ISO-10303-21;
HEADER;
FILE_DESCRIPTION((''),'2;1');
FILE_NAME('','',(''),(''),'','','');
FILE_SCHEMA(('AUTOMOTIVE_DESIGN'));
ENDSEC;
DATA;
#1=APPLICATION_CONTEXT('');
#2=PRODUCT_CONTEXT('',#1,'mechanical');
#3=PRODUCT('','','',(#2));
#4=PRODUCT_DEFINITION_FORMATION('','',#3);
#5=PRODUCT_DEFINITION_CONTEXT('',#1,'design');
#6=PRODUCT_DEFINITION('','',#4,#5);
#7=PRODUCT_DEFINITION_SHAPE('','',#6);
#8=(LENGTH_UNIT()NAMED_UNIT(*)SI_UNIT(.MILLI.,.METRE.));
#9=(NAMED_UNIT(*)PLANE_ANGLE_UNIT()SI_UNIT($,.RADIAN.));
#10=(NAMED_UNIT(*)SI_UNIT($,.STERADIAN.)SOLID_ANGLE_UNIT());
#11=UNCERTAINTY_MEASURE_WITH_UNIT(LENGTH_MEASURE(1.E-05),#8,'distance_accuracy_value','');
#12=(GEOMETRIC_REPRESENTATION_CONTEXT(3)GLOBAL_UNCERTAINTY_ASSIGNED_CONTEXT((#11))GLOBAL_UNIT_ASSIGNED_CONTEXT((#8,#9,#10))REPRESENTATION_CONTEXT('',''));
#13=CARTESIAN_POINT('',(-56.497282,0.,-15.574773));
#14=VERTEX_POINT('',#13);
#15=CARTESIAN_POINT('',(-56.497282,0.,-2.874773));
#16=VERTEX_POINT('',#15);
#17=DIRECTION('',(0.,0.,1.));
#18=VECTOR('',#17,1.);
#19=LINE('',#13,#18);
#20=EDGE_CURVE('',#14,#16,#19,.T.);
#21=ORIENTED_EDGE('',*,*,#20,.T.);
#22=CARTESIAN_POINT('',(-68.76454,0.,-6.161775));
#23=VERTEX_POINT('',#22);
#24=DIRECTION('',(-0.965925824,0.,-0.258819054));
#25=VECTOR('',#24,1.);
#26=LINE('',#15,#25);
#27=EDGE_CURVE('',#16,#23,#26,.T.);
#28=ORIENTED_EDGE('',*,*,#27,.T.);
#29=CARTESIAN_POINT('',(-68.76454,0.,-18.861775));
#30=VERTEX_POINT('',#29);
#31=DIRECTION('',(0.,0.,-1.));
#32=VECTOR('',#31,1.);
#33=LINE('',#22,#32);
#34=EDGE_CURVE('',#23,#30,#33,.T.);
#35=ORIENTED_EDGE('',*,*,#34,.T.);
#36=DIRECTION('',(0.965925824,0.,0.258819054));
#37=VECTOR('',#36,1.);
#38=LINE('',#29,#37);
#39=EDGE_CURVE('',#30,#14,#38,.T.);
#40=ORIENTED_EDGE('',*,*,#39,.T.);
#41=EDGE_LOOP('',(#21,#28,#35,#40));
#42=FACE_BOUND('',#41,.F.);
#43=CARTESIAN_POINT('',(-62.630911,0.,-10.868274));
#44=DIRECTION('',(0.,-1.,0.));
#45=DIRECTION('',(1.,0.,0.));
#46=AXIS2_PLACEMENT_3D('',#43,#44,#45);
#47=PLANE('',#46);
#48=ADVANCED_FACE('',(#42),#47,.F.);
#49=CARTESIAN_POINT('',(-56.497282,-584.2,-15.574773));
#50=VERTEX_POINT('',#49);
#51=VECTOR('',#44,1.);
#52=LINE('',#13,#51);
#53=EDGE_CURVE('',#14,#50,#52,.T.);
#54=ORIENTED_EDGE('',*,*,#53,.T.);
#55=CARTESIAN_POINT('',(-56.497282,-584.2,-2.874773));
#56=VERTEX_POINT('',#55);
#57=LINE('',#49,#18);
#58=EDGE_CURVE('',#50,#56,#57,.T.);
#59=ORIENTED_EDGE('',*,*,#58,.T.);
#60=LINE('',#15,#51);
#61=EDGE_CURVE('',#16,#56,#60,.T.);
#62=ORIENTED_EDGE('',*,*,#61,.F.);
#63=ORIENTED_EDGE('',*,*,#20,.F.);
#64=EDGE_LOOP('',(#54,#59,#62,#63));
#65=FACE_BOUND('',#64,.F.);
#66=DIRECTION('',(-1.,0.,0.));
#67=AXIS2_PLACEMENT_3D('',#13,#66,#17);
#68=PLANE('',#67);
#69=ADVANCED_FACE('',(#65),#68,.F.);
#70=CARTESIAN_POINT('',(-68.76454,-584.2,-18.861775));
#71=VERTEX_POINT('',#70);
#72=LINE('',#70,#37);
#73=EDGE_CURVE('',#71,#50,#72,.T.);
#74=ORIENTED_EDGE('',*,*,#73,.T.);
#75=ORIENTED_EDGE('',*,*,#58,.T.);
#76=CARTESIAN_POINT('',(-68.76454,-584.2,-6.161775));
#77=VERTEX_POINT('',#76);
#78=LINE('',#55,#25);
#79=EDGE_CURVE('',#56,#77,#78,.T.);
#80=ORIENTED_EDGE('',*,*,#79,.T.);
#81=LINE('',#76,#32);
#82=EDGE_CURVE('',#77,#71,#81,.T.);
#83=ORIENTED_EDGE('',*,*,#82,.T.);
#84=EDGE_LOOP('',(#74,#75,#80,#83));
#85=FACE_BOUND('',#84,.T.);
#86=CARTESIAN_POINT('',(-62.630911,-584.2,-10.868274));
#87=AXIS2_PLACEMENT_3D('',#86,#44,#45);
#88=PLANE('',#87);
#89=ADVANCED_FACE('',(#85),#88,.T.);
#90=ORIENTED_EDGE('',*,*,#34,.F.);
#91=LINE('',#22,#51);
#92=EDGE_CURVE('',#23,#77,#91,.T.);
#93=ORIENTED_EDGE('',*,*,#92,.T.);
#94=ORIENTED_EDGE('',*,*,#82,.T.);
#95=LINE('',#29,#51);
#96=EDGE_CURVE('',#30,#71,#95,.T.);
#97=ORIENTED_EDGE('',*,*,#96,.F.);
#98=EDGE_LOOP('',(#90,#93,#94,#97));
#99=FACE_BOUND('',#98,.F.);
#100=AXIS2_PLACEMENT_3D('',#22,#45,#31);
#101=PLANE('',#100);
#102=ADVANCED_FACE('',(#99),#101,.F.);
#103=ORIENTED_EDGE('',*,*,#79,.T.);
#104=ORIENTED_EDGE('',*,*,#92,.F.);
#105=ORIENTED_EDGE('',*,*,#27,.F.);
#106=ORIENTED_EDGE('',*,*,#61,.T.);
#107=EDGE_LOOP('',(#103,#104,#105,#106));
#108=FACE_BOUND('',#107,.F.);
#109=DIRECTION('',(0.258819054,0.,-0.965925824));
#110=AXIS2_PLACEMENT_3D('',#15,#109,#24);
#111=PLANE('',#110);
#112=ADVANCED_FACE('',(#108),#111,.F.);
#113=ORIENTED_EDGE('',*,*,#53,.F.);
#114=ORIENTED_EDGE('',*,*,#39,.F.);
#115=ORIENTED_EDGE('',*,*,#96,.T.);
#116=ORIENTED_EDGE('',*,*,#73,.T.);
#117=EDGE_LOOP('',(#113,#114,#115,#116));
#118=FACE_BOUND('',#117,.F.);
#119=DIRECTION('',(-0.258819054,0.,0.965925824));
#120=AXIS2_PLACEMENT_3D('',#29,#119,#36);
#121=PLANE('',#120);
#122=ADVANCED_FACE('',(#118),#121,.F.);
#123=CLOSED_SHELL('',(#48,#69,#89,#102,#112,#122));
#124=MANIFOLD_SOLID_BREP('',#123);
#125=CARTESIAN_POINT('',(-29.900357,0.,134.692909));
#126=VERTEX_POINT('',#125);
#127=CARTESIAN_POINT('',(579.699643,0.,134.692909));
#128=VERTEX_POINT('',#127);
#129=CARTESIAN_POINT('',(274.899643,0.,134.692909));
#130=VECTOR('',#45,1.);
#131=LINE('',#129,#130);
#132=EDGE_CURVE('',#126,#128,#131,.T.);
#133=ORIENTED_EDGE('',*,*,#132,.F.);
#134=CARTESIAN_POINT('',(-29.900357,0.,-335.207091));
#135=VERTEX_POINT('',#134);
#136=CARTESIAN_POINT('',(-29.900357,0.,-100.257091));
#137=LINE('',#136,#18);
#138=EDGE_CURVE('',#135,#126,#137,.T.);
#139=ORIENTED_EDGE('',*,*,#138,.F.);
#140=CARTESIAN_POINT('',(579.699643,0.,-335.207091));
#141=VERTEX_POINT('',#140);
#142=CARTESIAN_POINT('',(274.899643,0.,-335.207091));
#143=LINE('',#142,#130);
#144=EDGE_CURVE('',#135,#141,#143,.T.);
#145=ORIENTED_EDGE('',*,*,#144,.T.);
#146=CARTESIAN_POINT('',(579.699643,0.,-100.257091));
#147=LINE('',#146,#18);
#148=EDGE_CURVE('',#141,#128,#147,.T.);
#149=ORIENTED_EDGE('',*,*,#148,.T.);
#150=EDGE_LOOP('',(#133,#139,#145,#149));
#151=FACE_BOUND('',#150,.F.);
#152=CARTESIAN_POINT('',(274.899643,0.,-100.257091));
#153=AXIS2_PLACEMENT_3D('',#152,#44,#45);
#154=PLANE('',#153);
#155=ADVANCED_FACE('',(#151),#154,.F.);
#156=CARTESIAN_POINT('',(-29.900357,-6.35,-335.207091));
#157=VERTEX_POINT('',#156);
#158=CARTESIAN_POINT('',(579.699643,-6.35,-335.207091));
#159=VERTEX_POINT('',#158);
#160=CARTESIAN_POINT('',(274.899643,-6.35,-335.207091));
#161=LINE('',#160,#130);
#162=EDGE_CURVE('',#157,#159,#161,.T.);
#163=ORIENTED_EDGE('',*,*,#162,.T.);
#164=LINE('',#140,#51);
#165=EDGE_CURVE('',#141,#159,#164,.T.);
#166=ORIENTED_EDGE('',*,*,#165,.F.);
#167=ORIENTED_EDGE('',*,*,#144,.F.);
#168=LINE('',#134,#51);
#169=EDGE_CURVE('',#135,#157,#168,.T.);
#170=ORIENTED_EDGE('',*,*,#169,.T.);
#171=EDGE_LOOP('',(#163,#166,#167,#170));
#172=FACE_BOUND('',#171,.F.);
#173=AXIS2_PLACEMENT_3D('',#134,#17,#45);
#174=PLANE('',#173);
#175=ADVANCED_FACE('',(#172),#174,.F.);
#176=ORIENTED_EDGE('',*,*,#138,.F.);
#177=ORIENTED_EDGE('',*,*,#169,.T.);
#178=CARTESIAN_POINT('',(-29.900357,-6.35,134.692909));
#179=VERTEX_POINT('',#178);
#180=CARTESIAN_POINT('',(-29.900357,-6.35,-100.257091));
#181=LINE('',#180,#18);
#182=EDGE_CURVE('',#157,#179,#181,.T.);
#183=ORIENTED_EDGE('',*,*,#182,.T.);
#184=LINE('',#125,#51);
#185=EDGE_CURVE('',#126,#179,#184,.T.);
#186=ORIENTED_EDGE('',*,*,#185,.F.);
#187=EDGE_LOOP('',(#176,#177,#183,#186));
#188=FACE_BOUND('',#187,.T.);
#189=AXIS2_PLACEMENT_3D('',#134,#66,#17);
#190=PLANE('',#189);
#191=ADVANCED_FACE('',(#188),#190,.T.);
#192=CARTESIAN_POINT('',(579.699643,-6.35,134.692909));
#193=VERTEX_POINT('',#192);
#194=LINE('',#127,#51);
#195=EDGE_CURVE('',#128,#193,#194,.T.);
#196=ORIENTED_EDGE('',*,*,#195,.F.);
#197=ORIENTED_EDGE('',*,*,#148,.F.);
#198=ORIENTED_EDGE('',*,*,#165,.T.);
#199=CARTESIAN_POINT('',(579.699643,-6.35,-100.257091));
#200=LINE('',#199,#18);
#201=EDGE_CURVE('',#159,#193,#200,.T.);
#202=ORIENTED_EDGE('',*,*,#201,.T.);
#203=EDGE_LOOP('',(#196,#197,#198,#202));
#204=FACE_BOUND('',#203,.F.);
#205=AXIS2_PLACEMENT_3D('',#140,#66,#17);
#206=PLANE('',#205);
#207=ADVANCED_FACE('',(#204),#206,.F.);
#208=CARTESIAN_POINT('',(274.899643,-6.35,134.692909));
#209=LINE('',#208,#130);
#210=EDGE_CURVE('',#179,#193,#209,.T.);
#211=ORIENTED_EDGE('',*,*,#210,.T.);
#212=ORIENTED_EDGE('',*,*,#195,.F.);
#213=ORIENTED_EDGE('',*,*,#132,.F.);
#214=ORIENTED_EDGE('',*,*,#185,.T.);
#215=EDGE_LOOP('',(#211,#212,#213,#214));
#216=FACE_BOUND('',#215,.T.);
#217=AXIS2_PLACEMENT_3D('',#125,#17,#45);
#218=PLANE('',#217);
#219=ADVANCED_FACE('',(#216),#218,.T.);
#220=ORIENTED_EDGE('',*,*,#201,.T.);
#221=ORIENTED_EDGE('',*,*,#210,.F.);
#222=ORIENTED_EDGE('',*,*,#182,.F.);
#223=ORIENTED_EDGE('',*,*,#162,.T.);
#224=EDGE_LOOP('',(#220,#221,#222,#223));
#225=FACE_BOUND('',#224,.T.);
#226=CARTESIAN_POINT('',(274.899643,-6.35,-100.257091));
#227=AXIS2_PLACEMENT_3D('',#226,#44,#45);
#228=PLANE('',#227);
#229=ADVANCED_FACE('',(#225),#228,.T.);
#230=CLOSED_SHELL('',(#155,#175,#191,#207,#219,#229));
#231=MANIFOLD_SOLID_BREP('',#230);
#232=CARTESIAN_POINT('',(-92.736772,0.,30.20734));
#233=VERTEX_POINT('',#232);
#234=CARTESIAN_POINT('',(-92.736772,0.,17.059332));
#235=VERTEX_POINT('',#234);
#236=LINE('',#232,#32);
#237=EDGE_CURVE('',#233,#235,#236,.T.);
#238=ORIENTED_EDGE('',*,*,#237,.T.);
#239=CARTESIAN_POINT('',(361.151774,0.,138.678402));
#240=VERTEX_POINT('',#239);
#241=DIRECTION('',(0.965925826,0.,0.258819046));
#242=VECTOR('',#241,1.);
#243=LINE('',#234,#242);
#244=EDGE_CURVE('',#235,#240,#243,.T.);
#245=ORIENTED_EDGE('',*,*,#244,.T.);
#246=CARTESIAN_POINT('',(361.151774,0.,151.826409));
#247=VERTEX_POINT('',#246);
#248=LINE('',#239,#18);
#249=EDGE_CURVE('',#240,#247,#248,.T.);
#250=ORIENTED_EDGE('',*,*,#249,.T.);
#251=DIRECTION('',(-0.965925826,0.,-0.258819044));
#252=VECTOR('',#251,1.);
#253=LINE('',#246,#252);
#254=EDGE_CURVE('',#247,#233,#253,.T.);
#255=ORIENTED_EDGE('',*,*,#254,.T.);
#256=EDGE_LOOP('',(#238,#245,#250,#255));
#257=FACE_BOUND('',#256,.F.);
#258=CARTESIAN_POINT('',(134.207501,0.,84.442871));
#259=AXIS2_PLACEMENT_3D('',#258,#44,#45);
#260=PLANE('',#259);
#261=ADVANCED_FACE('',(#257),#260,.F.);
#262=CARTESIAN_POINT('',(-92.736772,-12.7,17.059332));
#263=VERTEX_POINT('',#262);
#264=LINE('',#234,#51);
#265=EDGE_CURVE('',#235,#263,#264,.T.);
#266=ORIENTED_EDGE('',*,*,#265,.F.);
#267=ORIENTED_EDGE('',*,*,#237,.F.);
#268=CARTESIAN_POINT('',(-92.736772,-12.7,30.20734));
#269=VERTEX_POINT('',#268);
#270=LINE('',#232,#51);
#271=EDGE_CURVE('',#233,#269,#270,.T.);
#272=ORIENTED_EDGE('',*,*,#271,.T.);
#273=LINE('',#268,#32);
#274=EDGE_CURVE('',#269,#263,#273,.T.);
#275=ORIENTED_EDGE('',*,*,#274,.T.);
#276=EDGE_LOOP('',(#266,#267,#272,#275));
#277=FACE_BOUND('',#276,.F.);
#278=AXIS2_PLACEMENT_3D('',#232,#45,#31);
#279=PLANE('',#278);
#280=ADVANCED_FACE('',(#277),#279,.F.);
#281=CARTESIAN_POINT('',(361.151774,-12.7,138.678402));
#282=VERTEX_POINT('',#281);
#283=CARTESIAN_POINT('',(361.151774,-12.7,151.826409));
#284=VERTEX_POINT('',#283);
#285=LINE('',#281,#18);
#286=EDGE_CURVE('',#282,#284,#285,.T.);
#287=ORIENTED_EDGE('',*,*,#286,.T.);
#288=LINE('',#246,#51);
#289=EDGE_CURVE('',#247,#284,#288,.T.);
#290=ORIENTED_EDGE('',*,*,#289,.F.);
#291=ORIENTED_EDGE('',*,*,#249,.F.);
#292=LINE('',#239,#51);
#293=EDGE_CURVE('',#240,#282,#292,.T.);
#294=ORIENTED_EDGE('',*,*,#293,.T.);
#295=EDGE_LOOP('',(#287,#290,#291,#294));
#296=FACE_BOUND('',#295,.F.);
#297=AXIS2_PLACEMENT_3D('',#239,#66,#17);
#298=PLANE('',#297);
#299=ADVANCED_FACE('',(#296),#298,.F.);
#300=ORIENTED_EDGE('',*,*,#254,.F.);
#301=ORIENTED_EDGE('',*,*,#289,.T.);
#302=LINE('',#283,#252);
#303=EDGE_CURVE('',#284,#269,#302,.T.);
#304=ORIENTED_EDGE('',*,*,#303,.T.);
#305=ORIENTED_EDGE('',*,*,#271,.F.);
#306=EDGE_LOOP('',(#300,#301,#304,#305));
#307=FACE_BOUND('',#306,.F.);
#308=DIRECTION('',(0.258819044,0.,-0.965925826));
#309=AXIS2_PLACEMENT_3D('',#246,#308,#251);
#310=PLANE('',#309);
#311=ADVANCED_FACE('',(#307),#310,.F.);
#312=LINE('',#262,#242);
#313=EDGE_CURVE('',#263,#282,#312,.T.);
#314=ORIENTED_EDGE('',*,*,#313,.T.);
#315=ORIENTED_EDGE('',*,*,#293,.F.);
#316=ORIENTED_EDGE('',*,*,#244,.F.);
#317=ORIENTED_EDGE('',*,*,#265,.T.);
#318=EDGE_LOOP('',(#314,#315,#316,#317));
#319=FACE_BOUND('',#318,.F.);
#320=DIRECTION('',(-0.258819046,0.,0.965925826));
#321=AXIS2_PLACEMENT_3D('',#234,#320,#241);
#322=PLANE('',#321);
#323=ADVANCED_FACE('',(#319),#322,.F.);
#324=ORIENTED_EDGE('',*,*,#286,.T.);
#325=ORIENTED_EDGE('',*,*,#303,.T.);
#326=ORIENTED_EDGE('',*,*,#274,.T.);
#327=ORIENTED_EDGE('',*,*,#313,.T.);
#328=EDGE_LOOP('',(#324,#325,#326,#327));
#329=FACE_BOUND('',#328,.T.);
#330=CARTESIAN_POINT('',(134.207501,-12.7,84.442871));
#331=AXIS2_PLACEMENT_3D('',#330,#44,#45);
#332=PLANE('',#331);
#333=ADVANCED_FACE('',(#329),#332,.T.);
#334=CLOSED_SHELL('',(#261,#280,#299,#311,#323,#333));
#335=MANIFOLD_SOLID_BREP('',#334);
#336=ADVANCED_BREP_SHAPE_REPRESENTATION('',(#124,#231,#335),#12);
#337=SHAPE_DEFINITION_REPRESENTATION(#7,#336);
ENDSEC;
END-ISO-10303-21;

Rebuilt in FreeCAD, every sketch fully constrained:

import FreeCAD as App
import Part
import Sketcher
Q = App.Units.Quantity


def add_polygon(sketch, points):
    """Adds a closed chain of lines whose ends are joined by coincident constraints."""
    first, n = sketch.GeometryCount, len(points)
    for a, b in zip(points, points[1:] + points[:1]):
        sketch.addGeometry(Part.LineSegment(App.Vector(*a, 0), App.Vector(*b, 0)), False)
    for i in range(n):
        sketch.addConstraint(Sketcher.Constraint("Coincident", first + i, 2, first + (i + 1) % n, 1))

doc = App.newDocument("Part")
params = doc.addObject("Spreadsheet::Sheet", "Params")
for row, (alias, value) in enumerate([
    ("sketch1_length", "18.5 in"),
    ("pad1_length", "0.5 in"),
    ("sketch2_height", "0.5 in"),
    ("sketch2_length", "0.5 in"),
    ("pad2_length", "23 in"),
    ("sketch3_width", "24 in"),
    ("sketch3_height", "18.5 in"),
    ("pad3_length", "0.25 in"),
], start=1):
    params.set(f"A{row}", alias)
    params.set(f"B{row}", "=" + value)
    params.setAlias(f"B{row}", alias)

body = doc.addObject("PartDesign::Body", "Body")

sketch1 = body.newObject("Sketcher::SketchObject", "Sketch")
sketch1.AttachmentSupport = (doc.getObject("XZ_Plane"), [""])
sketch1.MapMode = "FlatFace"
add_polygon(sketch1, [(361, 152), (-93, 30), (-93, 17), (361, 139)])
sketch1.addConstraint(Sketcher.Constraint("Vertical", 1))
sketch1.addConstraint(Sketcher.Constraint("Vertical", 3))
sketch1.addConstraint(Sketcher.Constraint("Parallel", 0, 2))
sketch1.addConstraint(Sketcher.Constraint("Angle", 0, Q("-165 deg")))
sketch1.addConstraint(Sketcher.Constraint("Distance", 0, Q("18.5 in")))
sketch1.addConstraint(Sketcher.Constraint("DistanceY", -1, 1, 2, 2, 138.678402))
sketch1.addConstraint(Sketcher.Constraint("DistanceY", 1, 2, 1, 1, 13.148008))
sketch1.addConstraint(Sketcher.Constraint("DistanceX", 0, 2, -1, 1, 92.736772))
sketch1.setExpression("Constraints[8]", "Params.sketch1_length")
pad1 = body.newObject("PartDesign::Pad", "Pad")
pad1.Profile = sketch1
pad1.setExpression("Length", "Params.pad1_length")
body2 = doc.addObject("PartDesign::Body", "Body001")

sketch2 = body2.newObject("Sketcher::SketchObject", "Sketch001")
sketch2.AttachmentSupport = (doc.getObject("XZ_Plane001"), [""])
sketch2.MapMode = "FlatFace"
add_polygon(sketch2, [(-56, -3), (-69, -6), (-69, -19), (-56, -16)])
sketch2.addConstraint(Sketcher.Constraint("Vertical", 1))
sketch2.addConstraint(Sketcher.Constraint("Vertical", 3))
sketch2.addConstraint(Sketcher.Constraint("Parallel", 0, 2))
sketch2.addConstraint(Sketcher.Constraint("DistanceY", 1, 2, 1, 1, Q("0.5 in")))
sketch2.addConstraint(Sketcher.Constraint("Angle", 0, Q("-164.999999 deg")))
sketch2.addConstraint(Sketcher.Constraint("Distance", 0, Q("0.5 in")))
sketch2.addConstraint(Sketcher.Constraint("DistanceX", 0, 2, -1, 1, 68.76454))
sketch2.addConstraint(Sketcher.Constraint("DistanceY", 0, 2, -1, 1, 6.161775))
sketch2.setExpression("Constraints[7]", "Params.sketch2_height")
sketch2.setExpression("Constraints[9]", "Params.sketch2_length")
pad2 = body2.newObject("PartDesign::Pad", "Pad001")
pad2.Profile = sketch2
pad2.setExpression("Length", "Params.pad2_length")
body3 = doc.addObject("PartDesign::Body", "Body002")

sketch3 = body3.newObject("Sketcher::SketchObject", "Sketch002")
sketch3.AttachmentSupport = (doc.getObject("XZ_Plane002"), [""])
sketch3.MapMode = "FlatFace"
add_polygon(sketch3, [(-30, 135), (-30, -335), (580, -335), (580, 135)])
sketch3.addConstraint(Sketcher.Constraint("Vertical", 0))
sketch3.addConstraint(Sketcher.Constraint("Horizontal", 1))
sketch3.addConstraint(Sketcher.Constraint("Vertical", 2))
sketch3.addConstraint(Sketcher.Constraint("Horizontal", 3))
sketch3.addConstraint(Sketcher.Constraint("DistanceX", 1, 1, 1, 2, Q("24 in")))
sketch3.addConstraint(Sketcher.Constraint("DistanceY", 0, 2, 0, 1, Q("18.5 in")))
sketch3.addConstraint(Sketcher.Constraint("DistanceY", 0, 2, -1, 1, 335.207091))
sketch3.addConstraint(Sketcher.Constraint("DistanceX", 0, 2, -1, 1, 29.900357))
sketch3.setExpression("Constraints[8]", "Params.sketch3_width")
sketch3.setExpression("Constraints[9]", "Params.sketch3_height")
pad3 = body3.newObject("PartDesign::Pad", "Pad002")
pad3.Profile = sketch3
pad3.setExpression("Length", "Params.pad3_length")

doc.recompute()
